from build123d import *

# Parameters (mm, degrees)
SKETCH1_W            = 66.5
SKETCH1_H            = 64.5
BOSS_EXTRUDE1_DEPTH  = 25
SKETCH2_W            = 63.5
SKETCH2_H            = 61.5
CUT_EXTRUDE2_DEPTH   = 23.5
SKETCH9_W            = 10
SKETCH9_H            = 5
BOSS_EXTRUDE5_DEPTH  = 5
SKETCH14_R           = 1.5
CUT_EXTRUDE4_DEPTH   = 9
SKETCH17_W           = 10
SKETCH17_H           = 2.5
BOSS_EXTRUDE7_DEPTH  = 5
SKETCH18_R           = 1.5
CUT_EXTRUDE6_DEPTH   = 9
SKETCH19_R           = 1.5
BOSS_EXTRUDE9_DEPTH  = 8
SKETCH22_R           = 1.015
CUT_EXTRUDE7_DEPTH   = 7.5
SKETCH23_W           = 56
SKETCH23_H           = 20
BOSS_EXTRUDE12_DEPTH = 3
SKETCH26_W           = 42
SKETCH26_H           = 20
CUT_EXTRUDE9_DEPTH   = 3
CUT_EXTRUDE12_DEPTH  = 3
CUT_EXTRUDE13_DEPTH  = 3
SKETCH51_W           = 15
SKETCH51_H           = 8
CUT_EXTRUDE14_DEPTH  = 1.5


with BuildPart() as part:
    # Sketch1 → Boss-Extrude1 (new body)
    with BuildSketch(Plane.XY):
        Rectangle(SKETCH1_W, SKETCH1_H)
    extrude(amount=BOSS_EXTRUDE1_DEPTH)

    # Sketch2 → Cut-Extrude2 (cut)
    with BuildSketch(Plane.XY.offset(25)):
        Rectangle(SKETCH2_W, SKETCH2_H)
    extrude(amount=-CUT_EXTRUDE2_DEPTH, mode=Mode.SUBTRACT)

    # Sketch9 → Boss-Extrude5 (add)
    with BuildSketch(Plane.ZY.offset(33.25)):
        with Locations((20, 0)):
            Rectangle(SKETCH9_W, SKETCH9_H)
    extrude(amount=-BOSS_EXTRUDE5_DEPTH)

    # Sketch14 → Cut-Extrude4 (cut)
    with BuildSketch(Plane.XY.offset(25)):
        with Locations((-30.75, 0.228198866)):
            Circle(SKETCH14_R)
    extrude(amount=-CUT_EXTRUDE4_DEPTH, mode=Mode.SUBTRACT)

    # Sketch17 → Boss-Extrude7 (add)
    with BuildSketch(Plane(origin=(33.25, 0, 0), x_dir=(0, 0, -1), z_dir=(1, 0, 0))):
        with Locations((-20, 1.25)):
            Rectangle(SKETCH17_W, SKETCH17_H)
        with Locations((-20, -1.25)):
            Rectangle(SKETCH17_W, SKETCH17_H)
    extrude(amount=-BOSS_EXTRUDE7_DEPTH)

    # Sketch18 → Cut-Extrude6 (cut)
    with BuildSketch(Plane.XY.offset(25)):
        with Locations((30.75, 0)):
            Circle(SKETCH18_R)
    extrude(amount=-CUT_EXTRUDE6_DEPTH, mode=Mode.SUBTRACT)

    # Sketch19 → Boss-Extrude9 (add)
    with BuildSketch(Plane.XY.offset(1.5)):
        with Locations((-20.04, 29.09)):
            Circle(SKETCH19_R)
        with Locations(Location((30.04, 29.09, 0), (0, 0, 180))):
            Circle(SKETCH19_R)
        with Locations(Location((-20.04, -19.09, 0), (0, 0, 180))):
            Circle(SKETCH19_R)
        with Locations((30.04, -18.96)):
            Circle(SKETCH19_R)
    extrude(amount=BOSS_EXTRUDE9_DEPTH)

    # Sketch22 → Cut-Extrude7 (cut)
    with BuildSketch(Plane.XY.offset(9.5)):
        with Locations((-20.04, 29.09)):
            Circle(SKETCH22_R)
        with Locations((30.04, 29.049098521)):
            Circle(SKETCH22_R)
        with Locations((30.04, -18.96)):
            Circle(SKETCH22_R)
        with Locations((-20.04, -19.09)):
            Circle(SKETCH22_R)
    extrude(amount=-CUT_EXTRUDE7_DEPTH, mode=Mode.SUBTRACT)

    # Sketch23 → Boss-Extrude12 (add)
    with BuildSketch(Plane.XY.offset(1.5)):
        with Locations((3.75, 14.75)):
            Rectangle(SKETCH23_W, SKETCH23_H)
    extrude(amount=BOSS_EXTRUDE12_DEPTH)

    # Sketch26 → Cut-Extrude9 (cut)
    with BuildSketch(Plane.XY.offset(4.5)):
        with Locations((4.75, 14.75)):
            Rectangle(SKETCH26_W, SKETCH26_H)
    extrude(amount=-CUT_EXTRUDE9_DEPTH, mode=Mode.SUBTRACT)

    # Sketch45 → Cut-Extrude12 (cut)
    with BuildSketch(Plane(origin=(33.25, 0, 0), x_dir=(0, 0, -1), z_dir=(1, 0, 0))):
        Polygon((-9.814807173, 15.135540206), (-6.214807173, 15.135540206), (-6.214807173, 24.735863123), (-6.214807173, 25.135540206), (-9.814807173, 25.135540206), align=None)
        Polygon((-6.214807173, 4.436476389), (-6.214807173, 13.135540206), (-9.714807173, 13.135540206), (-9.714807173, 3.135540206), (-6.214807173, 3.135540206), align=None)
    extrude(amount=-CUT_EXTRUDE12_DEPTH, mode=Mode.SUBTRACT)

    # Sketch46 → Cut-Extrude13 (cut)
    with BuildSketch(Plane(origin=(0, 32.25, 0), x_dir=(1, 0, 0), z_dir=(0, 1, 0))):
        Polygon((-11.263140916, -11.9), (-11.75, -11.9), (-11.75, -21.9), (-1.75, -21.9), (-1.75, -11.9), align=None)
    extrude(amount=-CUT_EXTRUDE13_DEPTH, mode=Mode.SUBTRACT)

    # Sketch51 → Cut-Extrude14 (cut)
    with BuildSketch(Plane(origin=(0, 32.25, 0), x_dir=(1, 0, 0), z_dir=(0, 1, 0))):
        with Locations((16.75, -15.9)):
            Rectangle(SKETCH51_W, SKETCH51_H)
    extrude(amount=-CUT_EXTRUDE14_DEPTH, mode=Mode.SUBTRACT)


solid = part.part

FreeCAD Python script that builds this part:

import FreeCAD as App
import Part
import Sketcher
from FreeCAD import Vector


def add_polygon(sketch, points):
    """Adds a closed chain of lines whose ends are joined by coincident constraints."""
    first, n = sketch.GeometryCount, len(points)
    for a, b in zip(points, points[1:] + points[:1]):
        sketch.addGeometry(Part.LineSegment(App.Vector(*a, 0), App.Vector(*b, 0)), False)
    for i in range(n):
        sketch.addConstraint(Sketcher.Constraint("Coincident", first + i, 2, first + (i + 1) % n, 1))

doc = App.newDocument("Part")
body = doc.addObject("PartDesign::Body", "Body")

sketch1 = doc.addObject("Sketcher::SketchObject", "Sketch")
body.addObject(sketch1)
sketch1.AttachmentSupport = (doc.XY_Plane, [""])
sketch1.MapMode = "FlatFace"
add_polygon(sketch1, [(-33, 32), (-33, -32), (33, -32), (33, 32)])
sketch1.addConstraint([
    Sketcher.Constraint("Vertical", 0),
    Sketcher.Constraint("Horizontal", 1),
    Sketcher.Constraint("Vertical", 2),
    Sketcher.Constraint("Horizontal", 3),
    Sketcher.Constraint("Symmetric", 0, 2, 2, 2, -1, 1),
    Sketcher.Constraint("DistanceX", 1, 1, 1, 2, 66.5),
    Sketcher.Constraint("DistanceY", 0, 2, 0, 1, 64.5),
])
pad1 = doc.addObject("PartDesign::Pad", "Pad")
body.addObject(pad1)
pad1.Profile = sketch1
pad1.Length = 25

sketch2 = doc.addObject("Sketcher::SketchObject", "Sketch001")
body.addObject(sketch2)
sketch2.AttachmentSupport = (doc.XY_Plane, [""])
sketch2.MapMode = "FlatFace"
sketch2.AttachmentOffset = App.Placement(Vector(0, 0, 25), App.Rotation())
add_polygon(sketch2, [(-32, 31), (-32, -31), (32, -31), (32, 31)])
sketch2.addConstraint([
    Sketcher.Constraint("Vertical", 0),
    Sketcher.Constraint("Horizontal", 1),
    Sketcher.Constraint("Vertical", 2),
    Sketcher.Constraint("Horizontal", 3),
    Sketcher.Constraint("Symmetric", 0, 2, 2, 2, -1, 1),
    Sketcher.Constraint("DistanceX", 1, 1, 1, 2, 63.5),
    Sketcher.Constraint("DistanceY", 0, 2, 0, 1, 61.5),
])
pocket1 = doc.addObject("PartDesign::Pocket", "Pocket")
body.addObject(pocket1)
pocket1.Profile = sketch2
pocket1.Length = 23.5

sketch3 = doc.addObject("Sketcher::SketchObject", "Sketch002")
body.addObject(sketch3)
sketch3.AttachmentSupport = (doc.YZ_Plane, [""])
sketch3.MapMode = "FlatFace"
sketch3.AttachmentOffset = App.Placement(Vector(0, 0, -33.25), App.Rotation())
add_polygon(sketch3, [(2, 15), (-2, 15), (-2, 25), (2, 25)])
sketch3.addConstraint([
    Sketcher.Constraint("Horizontal", 0),
    Sketcher.Constraint("Vertical", 1),
    Sketcher.Constraint("Horizontal", 2),
    Sketcher.Constraint("Vertical", 3),
    Sketcher.Constraint("DistanceX", 0, 2, 0, 1, 5.0),
    Sketcher.Constraint("DistanceY", 1, 1, 1, 2, 10.0),
    Sketcher.Constraint("DistanceY", -1, 1, 0, 2, 15.0),
    Sketcher.Constraint("DistanceX", 0, 2, -1, 1, 2.5),
])
pad2 = doc.addObject("PartDesign::Pad", "Pad001")
body.addObject(pad2)
pad2.Profile = sketch3
pad2.Length = 5

sketch4 = doc.addObject("Sketcher::SketchObject", "Sketch003")
body.addObject(sketch4)
sketch4.AttachmentSupport = (doc.XY_Plane, [""])
sketch4.MapMode = "FlatFace"
sketch4.AttachmentOffset = App.Placement(Vector(0, 0, 25), App.Rotation())
sketch4.addGeometry(Part.Circle(Vector(-30.8, 0.2, 0), Vector(0, 0, 1), 1.5), False)
sketch4.addConstraint([
    Sketcher.Constraint("Diameter", 0, 3.0),
    Sketcher.Constraint("DistanceX", 0, 3, -1, 1, 30.75),
    Sketcher.Constraint("DistanceY", -1, 1, 0, 3, 0.228199),
])
pocket2 = doc.addObject("PartDesign::Pocket", "Pocket001")
body.addObject(pocket2)
pocket2.Profile = sketch4
pocket2.Length = 9

sketch5 = doc.addObject("Sketcher::SketchObject", "Sketch004")
body.addObject(sketch5)
sketch5.AttachmentSupport = (doc.YZ_Plane, [""])
sketch5.MapMode = "FlatFace"
sketch5.AttachmentOffset = App.Placement(Vector(0, 0, 33.25), App.Rotation())
add_polygon(sketch5, [(2, 25), (-2, 25), (-2, 15), (2, 15)])
sketch5.addConstraint([
    Sketcher.Constraint("Horizontal", 0),
    Sketcher.Constraint("Vertical", 1),
    Sketcher.Constraint("Horizontal", 2),
    Sketcher.Constraint("Vertical", 3),
    Sketcher.Constraint("DistanceX", 0, 2, 0, 1, 5.0),
    Sketcher.Constraint("DistanceY", 1, 2, 1, 1, 10.0),
    Sketcher.Constraint("DistanceY", -1, 1, 0, 2, 25.0),
    Sketcher.Constraint("DistanceX", 0, 2, -1, 1, 2.5),
])
pad3 = doc.addObject("PartDesign::Pad", "Pad002")
body.addObject(pad3)
pad3.Profile = sketch5
pad3.Length = 5
pad3.Reversed = True

sketch6 = doc.addObject("Sketcher::SketchObject", "Sketch005")
body.addObject(sketch6)
sketch6.AttachmentSupport = (doc.XY_Plane, [""])
sketch6.MapMode = "FlatFace"
sketch6.AttachmentOffset = App.Placement(Vector(0, 0, 25), App.Rotation())
sketch6.addGeometry(Part.Circle(Vector(30.8, 0, 0), Vector(0, 0, 1), 1.5), False)
sketch6.addConstraint([
    Sketcher.Constraint("PointOnObject", 0, 3, -1),
    Sketcher.Constraint("Diameter", 0, 3.0),
    Sketcher.Constraint("DistanceX", -1, 1, 0, 3, 30.75),
])
pocket3 = doc.addObject("PartDesign::Pocket", "Pocket002")
body.addObject(pocket3)
pocket3.Profile = sketch6
pocket3.Length = 9

sketch7 = doc.addObject("Sketcher::SketchObject", "Sketch006")
body.addObject(sketch7)
sketch7.AttachmentSupport = (doc.XY_Plane, [""])
sketch7.MapMode = "FlatFace"
sketch7.AttachmentOffset = App.Placement(Vector(0, 0, 1.5), App.Rotation())
sketch7.addGeometry([
    Part.Circle(Vector(-20, 29.1, 0), Vector(0, 0, 1), 1.5),
    Part.Circle(Vector(30, 29.1, 0), Vector(0, 0, 1), 1.5),
    Part.Circle(Vector(-20, -19.1, 0), Vector(0, 0, 1), 1.5),
    Part.Circle(Vector(30, -19, 0), Vector(0, 0, 1), 1.5),
], False)
sketch7.addConstraint([
    Sketcher.Constraint("Equal", 0, 1),
    Sketcher.Constraint("Equal", 1, 2),
    Sketcher.Constraint("Equal", 2, 3),
    Sketcher.Constraint("Horizontal", 0, 3, 1, 3),
    Sketcher.Constraint("Vertical", 0, 3, 2, 3),
    Sketcher.Constraint("Vertical", 1, 3, 3, 3),
    Sketcher.Constraint("Diameter", 0, 3.0),
    Sketcher.Constraint("DistanceX", 0, 3, -1, 1, 20.04),
    Sketcher.Constraint("DistanceY", -1, 1, 0, 3, 29.09),
    Sketcher.Constraint("DistanceX", -1, 1, 1, 3, 30.04),
    Sketcher.Constraint("DistanceY", 2, 3, -1, 1, 19.09),
    Sketcher.Constraint("DistanceY", 3, 3, -1, 1, 18.96),
])
pad4 = doc.addObject("PartDesign::Pad", "Pad003")
body.addObject(pad4)
pad4.Profile = sketch7
pad4.Length = 8

sketch8 = doc.addObject("Sketcher::SketchObject", "Sketch007")
body.addObject(sketch8)
sketch8.AttachmentSupport = (doc.XY_Plane, [""])
sketch8.MapMode = "FlatFace"
sketch8.AttachmentOffset = App.Placement(Vector(0, 0, 9.5), App.Rotation())
sketch8.addGeometry([
    Part.Circle(Vector(-20, 29.1, 0), Vector(0, 0, 1), 1),
    Part.Circle(Vector(30, 29, 0), Vector(0, 0, 1), 1),
    Part.Circle(Vector(30, -19, 0), Vector(0, 0, 1), 1),
    Part.Circle(Vector(-20, -19.1, 0), Vector(0, 0, 1), 1),
], False)
sketch8.addConstraint([
    Sketcher.Constraint("Equal", 0, 1),
    Sketcher.Constraint("Equal", 1, 2),
    Sketcher.Constraint("Equal", 2, 3),
    Sketcher.Constraint("Vertical", 1, 3, 2, 3),
    Sketcher.Constraint("Vertical", 0, 3, 3, 3),
    Sketcher.Constraint("Diameter", 0, 2.03),
    Sketcher.Constraint("DistanceX", 0, 3, -1, 1, 20.04),
    Sketcher.Constraint("DistanceY", -1, 1, 0, 3, 29.09),
    Sketcher.Constraint("DistanceX", -1, 1, 1, 3, 30.04),
    Sketcher.Constraint("DistanceY", 2, 3, -1, 1, 18.96),
    Sketcher.Constraint("DistanceY", 3, 3, -1, 1, 19.09),
    Sketcher.Constraint("DistanceY", -1, 1, 1, 3, 29.049099),
])
pocket4 = doc.addObject("PartDesign::Pocket", "Pocket003")
body.addObject(pocket4)
pocket4.Profile = sketch8
pocket4.Length = 7.5

sketch9 = doc.addObject("Sketcher::SketchObject", "Sketch008")
body.addObject(sketch9)
sketch9.AttachmentSupport = (doc.XY_Plane, [""])
sketch9.MapMode = "FlatFace"
sketch9.AttachmentOffset = App.Placement(Vector(0, 0, 1.5), App.Rotation())
add_polygon(sketch9, [(-24, 25), (-24, 5), (32, 5), (32, 25)])
sketch9.addConstraint([
    Sketcher.Constraint("Vertical", 0),
    Sketcher.Constraint("Horizontal", 1),
    Sketcher.Constraint("Vertical", 2),
    Sketcher.Constraint("Horizontal", 3),
    Sketcher.Constraint("DistanceX", 1, 1, 1, 2, 56.0),
    Sketcher.Constraint("DistanceY", 0, 2, 0, 1, 20.0),
    Sketcher.Constraint("DistanceX", 0, 2, -1, 1, 24.25),
    Sketcher.Constraint("DistanceY", -1, 1, 0, 2, 4.75),
])
pad5 = doc.addObject("PartDesign::Pad", "Pad004")
body.addObject(pad5)
pad5.Profile = sketch9
pad5.Length = 3

sketch10 = doc.addObject("Sketcher::SketchObject", "Sketch009")
body.addObject(sketch10)
sketch10.AttachmentSupport = (doc.XY_Plane, [""])
sketch10.MapMode = "FlatFace"
sketch10.AttachmentOffset = App.Placement(Vector(0, 0, 4.5), App.Rotation())
add_polygon(sketch10, [(-16, 25), (-16, 5), (26, 5), (26, 25)])
sketch10.addConstraint([
    Sketcher.Constraint("Vertical", 0),
    Sketcher.Constraint("Horizontal", 1),
    Sketcher.Constraint("Vertical", 2),
    Sketcher.Constraint("Horizontal", 3),
    Sketcher.Constraint("DistanceX", 1, 1, 1, 2, 42.0),
    Sketcher.Constraint("DistanceY", 0, 2, 0, 1, 20.0),
    Sketcher.Constraint("DistanceX", 0, 2, -1, 1, 16.25),
    Sketcher.Constraint("DistanceY", -1, 1, 0, 2, 4.75),
])
pocket5 = doc.addObject("PartDesign::Pocket", "Pocket004")
body.addObject(pocket5)
pocket5.Profile = sketch10
pocket5.Length = 3

sketch11 = doc.addObject("Sketcher::SketchObject", "Sketch010")
body.addObject(sketch11)
sketch11.AttachmentSupport = (doc.YZ_Plane, [""])
sketch11.MapMode = "FlatFace"
sketch11.AttachmentOffset = App.Placement(Vector(0, 0, 33.25), App.Rotation())
add_polygon(sketch11, [(15.1, 9.8), (15.1, 6.2), (25.1, 6.2), (25.1, 9.8)])
add_polygon(sketch11, [(13.1, 6.2), (13.1, 9.7), (3.1, 9.7), (3.1, 6.2)])
sketch11.addConstraint([
    Sketcher.Constraint("Vertical", 0),
    Sketcher.Constraint("Horizontal", 1),
    Sketcher.Constraint("Vertical", 2),
    Sketcher.Constraint("Horizontal", 3),
    Sketcher.Constraint("Vertical", 4),
    Sketcher.Constraint("Horizontal", 5),
    Sketcher.Constraint("Vertical", 6),
    Sketcher.Constraint("Horizontal", 7),
    Sketcher.Constraint("Horizontal", 1, 2, 6, 2),
    Sketcher.Constraint("Equal", 3, 5),
    Sketcher.Constraint("DistanceX", 1, 1, 1, 2, 10.0),
    Sketcher.Constraint("DistanceY", 0, 2, 0, 1, 3.6),
    Sketcher.Constraint("DistanceY", 4, 1, 4, 2, 3.5),
    Sketcher.Constraint("DistanceX", 4, 2, 3, 2, 2.0),
    Sketcher.Constraint("DistanceX", -1, 1, 0, 2, 15.13554),
    Sketcher.Constraint("DistanceY", -1, 1, 0, 2, 6.214807),
])
pocket6 = doc.addObject("PartDesign::Pocket", "Pocket005")
body.addObject(pocket6)
pocket6.Profile = sketch11
pocket6.Length = 3

sketch12 = doc.addObject("Sketcher::SketchObject", "Sketch011")
body.addObject(sketch12)
sketch12.AttachmentSupport = (doc.XZ_Plane, [""])
sketch12.MapMode = "FlatFace"
sketch12.AttachmentOffset = App.Placement(Vector(0, 0, -32.25), App.Rotation())
add_polygon(sketch12, [(-12, 12), (-12, 22), (-2, 22), (-2, 12)])
sketch12.addConstraint([
    Sketcher.Constraint("Vertical", 0),
    Sketcher.Constraint("Horizontal", 1),
    Sketcher.Constraint("Vertical", 2),
    Sketcher.Constraint("Horizontal", 3),
    Sketcher.Constraint("Equal", 3, 0),
    Sketcher.Constraint("DistanceX", 1, 1, 1, 2, 10.0),
    Sketcher.Constraint("DistanceY", -1, 1, 0, 2, 21.9),
    Sketcher.Constraint("DistanceX", 0, 2, -1, 1, 11.75),
])
pocket7 = doc.addObject("PartDesign::Pocket", "Pocket006")
body.addObject(pocket7)
pocket7.Profile = sketch12
pocket7.Length = 3
pocket7.Reversed = True

sketch13 = doc.addObject("Sketcher::SketchObject", "Sketch012")
body.addObject(sketch13)
sketch13.AttachmentSupport = (doc.XZ_Plane, [""])
sketch13.MapMode = "FlatFace"
sketch13.AttachmentOffset = App.Placement(Vector(0, 0, -32.25), App.Rotation())
add_polygon(sketch13, [(9, 12), (9, 20), (24, 20), (24, 12)])
sketch13.addConstraint([
    Sketcher.Constraint("Vertical", 0),
    Sketcher.Constraint("Horizontal", 1),
    Sketcher.Constraint("Vertical", 2),
    Sketcher.Constraint("Horizontal", 3),
    Sketcher.Constraint("DistanceX", 1, 1, 1, 2, 15.0),
    Sketcher.Constraint("DistanceY", 0, 1, 0, 2, 8.0),
    Sketcher.Constraint("DistanceY", -1, 1, 0, 2, 19.9),
    Sketcher.Constraint("DistanceX", -1, 1, 0, 2, 9.25),
])
pocket8 = doc.addObject("PartDesign::Pocket", "Pocket007")
body.addObject(pocket8)
pocket8.Profile = sketch13
pocket8.Length = 1.5
pocket8.Reversed = True

doc.recompute()
